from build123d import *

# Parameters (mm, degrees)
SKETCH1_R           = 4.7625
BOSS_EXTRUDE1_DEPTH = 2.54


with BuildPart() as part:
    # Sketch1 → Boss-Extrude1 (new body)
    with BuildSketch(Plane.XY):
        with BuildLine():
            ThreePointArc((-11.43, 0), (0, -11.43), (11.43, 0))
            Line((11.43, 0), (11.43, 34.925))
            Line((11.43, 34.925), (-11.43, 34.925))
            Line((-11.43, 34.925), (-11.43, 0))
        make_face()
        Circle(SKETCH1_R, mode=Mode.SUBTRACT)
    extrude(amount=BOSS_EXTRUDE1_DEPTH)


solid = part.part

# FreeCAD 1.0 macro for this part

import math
import FreeCAD as App
import Part
import Sketcher
Q = App.Units.Quantity

doc = App.newDocument("Part")
body = doc.addObject("PartDesign::Body", "Body")

# Sketch on XY plane
sketch1 = body.newObject("Sketcher::SketchObject", "Sketch")
sketch1.AttachmentSupport = (doc.getObject("XY_Plane"), [""])
sketch1.MapMode = "FlatFace"
sketch1.addGeometry([
    Part.ArcOfCircle(Part.Circle(App.Vector(0, 0, 0), App.Vector(0, 0, 1), 11.43), math.radians(180), math.radians(360)),  # 0
    Part.LineSegment(App.Vector(11.43, 0, 0), App.Vector(11.43, 34.925, 0)),  # 1
    Part.LineSegment(App.Vector(11.43, 34.925, 0), App.Vector(-11.43, 34.925, 0)),  # 2
    Part.LineSegment(App.Vector(-11.43, 34.925, 0), App.Vector(-11.43, 0, 0)),  # 3
    Part.Circle(App.Vector(0, 0, 0), App.Vector(0, 0, 1), 4.7625),  # 4
], False)
sketch1.addConstraint([
    Sketcher.Constraint("Tangent", 0, 2, 1, 1),
    Sketcher.Constraint("Coincident", 1, 2, 2, 1),
    Sketcher.Constraint("Coincident", 2, 2, 3, 1),
    Sketcher.Constraint("Tangent", 3, 2, 0, 1),
    Sketcher.Constraint("Vertical", 1),
    Sketcher.Constraint("Horizontal", 2),
    Sketcher.Constraint("Vertical", 3),
    Sketcher.Constraint("Coincident", 0, 3, -1, 1),
    Sketcher.Constraint("Coincident", 4, 3, -1, 1),
    Sketcher.Constraint("Radius", 0, Q("0.45 in")),
    Sketcher.Constraint("Diameter", 4, Q("0.375 in")),
    Sketcher.Constraint("DistanceY", 1, 1, 1, 2, Q("1.375 in")),
])
pad1 = body.newObject("PartDesign::Pad", "Pad")
pad1.Profile = sketch1
pad1.Length = Q("0.1 in")

doc.recompute()
